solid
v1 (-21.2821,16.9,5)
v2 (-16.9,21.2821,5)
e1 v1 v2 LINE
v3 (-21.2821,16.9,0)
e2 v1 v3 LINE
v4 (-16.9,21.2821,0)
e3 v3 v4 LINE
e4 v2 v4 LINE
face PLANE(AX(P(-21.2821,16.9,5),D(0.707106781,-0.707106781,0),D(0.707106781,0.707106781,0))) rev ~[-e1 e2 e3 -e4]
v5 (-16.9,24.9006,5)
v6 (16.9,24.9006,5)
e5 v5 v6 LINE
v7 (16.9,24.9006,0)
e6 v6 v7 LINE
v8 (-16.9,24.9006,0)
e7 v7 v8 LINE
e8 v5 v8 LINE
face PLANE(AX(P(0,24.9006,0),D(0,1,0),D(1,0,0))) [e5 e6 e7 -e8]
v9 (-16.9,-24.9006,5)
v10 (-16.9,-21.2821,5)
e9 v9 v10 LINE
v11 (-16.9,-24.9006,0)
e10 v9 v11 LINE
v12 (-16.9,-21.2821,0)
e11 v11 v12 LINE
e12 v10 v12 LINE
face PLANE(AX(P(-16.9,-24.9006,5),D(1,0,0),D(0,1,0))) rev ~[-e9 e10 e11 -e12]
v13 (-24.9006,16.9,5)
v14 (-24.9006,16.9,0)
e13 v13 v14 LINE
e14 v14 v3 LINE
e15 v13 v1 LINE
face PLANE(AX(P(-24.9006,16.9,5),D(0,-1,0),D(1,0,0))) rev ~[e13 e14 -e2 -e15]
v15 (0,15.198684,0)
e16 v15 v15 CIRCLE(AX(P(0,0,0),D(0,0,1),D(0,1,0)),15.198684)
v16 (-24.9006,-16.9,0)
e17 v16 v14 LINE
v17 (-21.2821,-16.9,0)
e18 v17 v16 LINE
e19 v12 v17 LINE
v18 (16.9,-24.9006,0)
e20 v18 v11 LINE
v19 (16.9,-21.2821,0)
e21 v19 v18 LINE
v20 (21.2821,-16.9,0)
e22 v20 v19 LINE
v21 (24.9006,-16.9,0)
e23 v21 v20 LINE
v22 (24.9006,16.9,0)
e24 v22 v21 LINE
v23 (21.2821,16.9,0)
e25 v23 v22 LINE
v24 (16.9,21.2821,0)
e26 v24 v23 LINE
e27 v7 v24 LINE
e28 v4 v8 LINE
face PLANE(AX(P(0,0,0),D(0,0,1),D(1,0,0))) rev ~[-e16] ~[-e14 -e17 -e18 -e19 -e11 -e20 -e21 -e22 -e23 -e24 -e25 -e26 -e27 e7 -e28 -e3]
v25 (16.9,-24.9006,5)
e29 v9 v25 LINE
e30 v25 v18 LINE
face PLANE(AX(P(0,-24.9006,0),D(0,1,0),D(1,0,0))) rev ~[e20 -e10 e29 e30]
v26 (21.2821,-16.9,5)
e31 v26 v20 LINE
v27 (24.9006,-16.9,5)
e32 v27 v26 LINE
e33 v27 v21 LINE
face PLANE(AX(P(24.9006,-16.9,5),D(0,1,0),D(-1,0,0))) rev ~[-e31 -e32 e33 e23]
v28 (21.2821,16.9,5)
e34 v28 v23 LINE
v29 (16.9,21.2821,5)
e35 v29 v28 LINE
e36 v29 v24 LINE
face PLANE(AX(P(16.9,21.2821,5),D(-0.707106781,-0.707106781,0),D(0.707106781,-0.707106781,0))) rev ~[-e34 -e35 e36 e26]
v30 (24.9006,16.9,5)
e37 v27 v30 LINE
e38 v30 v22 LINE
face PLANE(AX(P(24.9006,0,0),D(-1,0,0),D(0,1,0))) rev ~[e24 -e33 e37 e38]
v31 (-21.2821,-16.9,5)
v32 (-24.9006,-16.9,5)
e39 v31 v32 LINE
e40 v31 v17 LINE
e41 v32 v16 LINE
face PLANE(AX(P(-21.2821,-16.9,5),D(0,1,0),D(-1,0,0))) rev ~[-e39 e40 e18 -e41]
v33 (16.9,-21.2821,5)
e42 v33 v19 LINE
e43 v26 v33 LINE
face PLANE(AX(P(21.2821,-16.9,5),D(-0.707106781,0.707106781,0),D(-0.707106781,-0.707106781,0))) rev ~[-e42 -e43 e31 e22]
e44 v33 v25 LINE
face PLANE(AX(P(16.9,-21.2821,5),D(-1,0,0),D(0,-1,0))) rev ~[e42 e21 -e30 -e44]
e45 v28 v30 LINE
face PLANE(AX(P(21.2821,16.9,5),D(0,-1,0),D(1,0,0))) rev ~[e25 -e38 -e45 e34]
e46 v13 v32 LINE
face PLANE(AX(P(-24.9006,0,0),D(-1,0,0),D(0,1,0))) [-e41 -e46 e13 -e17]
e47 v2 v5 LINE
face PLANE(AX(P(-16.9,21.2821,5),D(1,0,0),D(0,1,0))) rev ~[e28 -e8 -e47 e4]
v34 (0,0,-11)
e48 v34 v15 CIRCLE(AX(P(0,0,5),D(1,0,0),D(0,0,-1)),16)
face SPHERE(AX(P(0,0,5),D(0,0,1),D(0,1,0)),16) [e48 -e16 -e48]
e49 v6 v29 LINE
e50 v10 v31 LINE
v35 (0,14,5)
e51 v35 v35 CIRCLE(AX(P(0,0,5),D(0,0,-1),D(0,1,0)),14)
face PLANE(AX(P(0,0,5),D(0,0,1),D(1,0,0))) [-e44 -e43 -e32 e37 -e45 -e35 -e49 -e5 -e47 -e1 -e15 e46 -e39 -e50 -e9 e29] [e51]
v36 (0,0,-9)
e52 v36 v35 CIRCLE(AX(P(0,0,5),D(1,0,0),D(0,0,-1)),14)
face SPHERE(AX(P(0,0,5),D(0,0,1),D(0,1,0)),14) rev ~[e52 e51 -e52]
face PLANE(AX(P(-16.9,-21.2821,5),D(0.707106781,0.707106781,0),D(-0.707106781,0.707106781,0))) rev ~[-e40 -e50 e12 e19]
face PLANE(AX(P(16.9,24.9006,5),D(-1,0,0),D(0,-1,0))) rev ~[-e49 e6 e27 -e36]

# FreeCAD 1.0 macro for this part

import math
import FreeCAD as App
import Part
import Sketcher

V = App.Vector

doc = App.newDocument("Part")
body = doc.addObject("PartDesign::Body", "Body")

sketch1 = body.newObject("Sketcher::SketchObject", "Sketch")
sketch1.AttachmentSupport = (doc.getObject("XY_Plane"), [""])
sketch1.MapMode = "FlatFace"
sketch1.addGeometry([
    Part.LineSegment(V(16.8, 24.9, 0), V(-16.8, 24.9, 0)),
    Part.LineSegment(V(-16.8, 24.9, 0), V(-16.8, 21.2, 0)),
    Part.LineSegment(V(-16.8, 21.2, 0), V(-21.2, 16.8, 0)),
    Part.LineSegment(V(-21.2, 16.8, 0), V(-24.9, 16.8, 0)),
    Part.LineSegment(V(-24.9, 16.8, 0), V(-24.9, -16.8, 0)),
    Part.LineSegment(V(-24.9, -16.8, 0), V(-21.2, -16.8, 0)),
    Part.LineSegment(V(-21.2, -16.8, 0), V(-16.8, -21.2, 0)),
    Part.LineSegment(V(-16.8, -21.2, 0), V(-16.8, -24.9, 0)),
    Part.LineSegment(V(-16.8, -24.9, 0), V(16.8, -24.9, 0)),
    Part.LineSegment(V(16.8, -24.9, 0), V(16.8, -21.2, 0)),
    Part.LineSegment(V(16.8, -21.2, 0), V(21.2, -16.8, 0)),
    Part.LineSegment(V(21.2, -16.8, 0), V(24.9, -16.8, 0)),
    Part.LineSegment(V(24.9, -16.8, 0), V(24.9, 16.8, 0)),
    Part.LineSegment(V(24.9, 16.8, 0), V(21.2, 16.8, 0)),
    Part.LineSegment(V(21.2, 16.8, 0), V(16.8, 21.2, 0)),
    Part.LineSegment(V(16.8, 21.2, 0), V(16.8, 24.9, 0)),
    Part.Circle(V(0, 0, 0), V(0, 0, 1), 14),
], False)
sketch1.addConstraint([
    Sketcher.Constraint("Coincident", 0, 2, 1, 1),
    Sketcher.Constraint("Coincident", 1, 2, 2, 1),
    Sketcher.Constraint("Coincident", 2, 2, 3, 1),
    Sketcher.Constraint("Coincident", 3, 2, 4, 1),
    Sketcher.Constraint("Coincident", 4, 2, 5, 1),
    Sketcher.Constraint("Coincident", 5, 2, 6, 1),
    Sketcher.Constraint("Coincident", 6, 2, 7, 1),
    Sketcher.Constraint("Coincident", 7, 2, 8, 1),
    Sketcher.Constraint("Coincident", 8, 2, 9, 1),
    Sketcher.Constraint("Coincident", 9, 2, 10, 1),
    Sketcher.Constraint("Coincident", 10, 2, 11, 1),
    Sketcher.Constraint("Coincident", 11, 2, 12, 1),
    Sketcher.Constraint("Coincident", 12, 2, 13, 1),
    Sketcher.Constraint("Coincident", 13, 2, 14, 1),
    Sketcher.Constraint("Coincident", 14, 2, 15, 1),
    Sketcher.Constraint("Coincident", 15, 2, 0, 1),
    Sketcher.Constraint("Horizontal", 0),
    Sketcher.Constraint("Vertical", 1),
    Sketcher.Constraint("Horizontal", 3),
    Sketcher.Constraint("Vertical", 4),
    Sketcher.Constraint("Horizontal", 5),
    Sketcher.Constraint("Vertical", 7),
    Sketcher.Constraint("Horizontal", 8),
    Sketcher.Constraint("Vertical", 9),
    Sketcher.Constraint("Horizontal", 11),
    Sketcher.Constraint("Vertical", 12),
    Sketcher.Constraint("Horizontal", 13),
    Sketcher.Constraint("Vertical", 15),
    Sketcher.Constraint("Coincident", 16, 3, -1, 1),
    Sketcher.Constraint("Symmetric", 0, 2, 8, 2, -1, 1),
    Sketcher.Constraint("Symmetric", 2, 2, 10, 2, -1, 1),
    Sketcher.Constraint("Symmetric", 4, 2, 12, 2, -1, 1),
    Sketcher.Constraint("Symmetric", 6, 2, 14, 2, -1, 1),
    Sketcher.Constraint("Symmetric", 6, 2, 9, 2, -2),
    Sketcher.Constraint("Symmetric", 5, 2, 10, 2, -2),
    Sketcher.Constraint("Perpendicular", 2, 6),
    Sketcher.Constraint("Perpendicular", 6, 10),
    Sketcher.Constraint("Perpendicular", 10, 14),
    Sketcher.Constraint("Equal", 13, 1),
    Sketcher.Constraint("Equal", 8, 4),
    Sketcher.Constraint("Diameter", 16, 28.0),
    Sketcher.Constraint("DistanceX", 3, 2, 3, 1, 3.66),
    Sketcher.Constraint("DistanceX", 0, 2, -1, 1, 16.8),
    Sketcher.Constraint("Distance", 2, 6.28),
])
pad1 = body.newObject("PartDesign::Pad", "Pad")
pad1.Profile = sketch1
pad1.Length = 5

sketch2 = body.newObject("Sketcher::SketchObject", "Sketch001")
sketch2.AttachmentSupport = (doc.getObject("YZ_Plane"), [""])
sketch2.MapMode = "FlatFace"
sketch2.addGeometry([
    Part.ArcOfCircle(Part.Circle(V(0, 5, 0), V(0, 0, 1), 16), math.radians(-90), math.radians(0)),
    Part.LineSegment(V(16, 5, 0), V(14, 5, 0)),
    Part.ArcOfCircle(Part.Circle(V(0, 5, 0), V(0, 0, 1), 14), math.radians(-90), math.radians(0)),
    Part.LineSegment(V(0, -9, 0), V(0, -11, 0)),
], False)
sketch2.addConstraint([
    Sketcher.Constraint("Coincident", 0, 2, 1, 1),
    Sketcher.Constraint("Coincident", 1, 2, 2, 2),
    Sketcher.Constraint("Coincident", 2, 1, 3, 1),
    Sketcher.Constraint("Coincident", 3, 2, 0, 1),
    Sketcher.Constraint("Horizontal", 1),
    Sketcher.Constraint("Vertical", 3),
    Sketcher.Constraint("Coincident", 2, 3, 0, 3),
    Sketcher.Constraint("PointOnObject", 0, 3, -2),
    Sketcher.Constraint("PointOnObject", 2, 1, -2),
    Sketcher.Constraint("Horizontal", 2, 3, 0, 2),
    Sketcher.Constraint("Radius", 0, 16.0),
    Sketcher.Constraint("Radius", 2, 14.0),
    Sketcher.Constraint("DistanceY", -1, 1, 0, 3, 5.0),
])
revolution = body.newObject("PartDesign::Revolution", "Revolution")
revolution.Profile = sketch2
revolution.ReferenceAxis = (sketch2, ["V_Axis"])
revolution.Angle = 360

sketch3 = body.newObject("Sketcher::SketchObject", "Sketch002")
sketch3.AttachmentSupport = (doc.getObject("XY_Plane"), [""])
sketch3.MapMode = "FlatFace"
sketch3.AttachmentOffset = App.Placement(V(0, 0, 5), App.Rotation())
sketch3.addGeometry([
    Part.LineSegment(V(-21.24, -16.8, 0), V(-24.9, -16.8, 0)),
    Part.LineSegment(V(-24.9, -16.8, 0), V(-24.9, -16.9, 0)),
    Part.LineSegment(V(-24.9, -16.9, 0), V(-21.28, -16.9, 0)),
    Part.LineSegment(V(-21.28, -16.9, 0), V(-16.9, -21.28, 0)),
    Part.LineSegment(V(-16.9, -21.28, 0), V(-16.9, -24.9, 0)),
    Part.LineSegment(V(-16.9, -24.9, 0), V(-16.8, -24.9, 0)),
    Part.LineSegment(V(-16.8, -24.9, 0), V(-16.8, -21.24, 0)),
    Part.LineSegment(V(-16.8, -21.24, 0), V(-21.24, -16.8, 0)),
    Part.LineSegment(V(24.9, -16.9, 0), V(24.9, -16.8, 0)),
    Part.LineSegment(V(24.9, -16.8, 0), V(21.24, -16.8, 0)),
    Part.LineSegment(V(21.24, -16.8, 0), V(16.8, -21.24, 0)),
    Part.LineSegment(V(16.8, -21.24, 0), V(16.8, -24.9, 0)),
    Part.LineSegment(V(16.8, -24.9, 0), V(16.9, -24.9, 0)),
    Part.LineSegment(V(16.9, -24.9, 0), V(16.9, -21.28, 0)),
    Part.LineSegment(V(16.9, -21.28, 0), V(21.28, -16.9, 0)),
    Part.LineSegment(V(21.28, -16.9, 0), V(24.9, -16.9, 0)),
    Part.LineSegment(V(16.9, 24.9, 0), V(16.8, 24.9, 0)),
    Part.LineSegment(V(16.8, 24.9, 0), V(16.8, 21.24, 0)),
    Part.LineSegment(V(16.8, 21.24, 0), V(21.24, 16.8, 0)),
    Part.LineSegment(V(21.24, 16.8, 0), V(24.9, 16.8, 0)),
    Part.LineSegment(V(24.9, 16.8, 0), V(24.9, 16.9, 0)),
    Part.LineSegment(V(24.9, 16.9, 0), V(21.28, 16.9, 0)),
    Part.LineSegment(V(21.28, 16.9, 0), V(16.9, 21.28, 0)),
    Part.LineSegment(V(16.9, 21.28, 0), V(16.9, 24.9, 0)),
    Part.LineSegment(V(-16.8, 21.24, 0), V(-16.8, 24.9, 0)),
    Part.LineSegment(V(-16.8, 24.9, 0), V(-16.9, 24.9, 0)),
    Part.LineSegment(V(-16.9, 24.9, 0), V(-16.9, 21.28, 0)),
    Part.LineSegment(V(-16.9, 21.28, 0), V(-21.28, 16.9, 0)),
    Part.LineSegment(V(-21.28, 16.9, 0), V(-24.9, 16.9, 0)),
    Part.LineSegment(V(-24.9, 16.9, 0), V(-24.9, 16.8, 0)),
    Part.LineSegment(V(-24.9, 16.8, 0), V(-21.24, 16.8, 0)),
    Part.LineSegment(V(-21.24, 16.8, 0), V(-16.8, 21.24, 0)),
], False)
sketch3.addConstraint([
    Sketcher.Constraint("Coincident", 0, 2, 1, 1),
    Sketcher.Constraint("Coincident", 1, 2, 2, 1),
    Sketcher.Constraint("Coincident", 2, 2, 3, 1),
    Sketcher.Constraint("Coincident", 3, 2, 4, 1),
    Sketcher.Constraint("Coincident", 4, 2, 5, 1),
    Sketcher.Constraint("Coincident", 5, 2, 6, 1),
    Sketcher.Constraint("Coincident", 6, 2, 7, 1),
    Sketcher.Constraint("Coincident", 7, 2, 0, 1),
    Sketcher.Constraint("Coincident", 8, 2, 9, 1),
    Sketcher.Constraint("Coincident", 9, 2, 10, 1),
    Sketcher.Constraint("Coincident", 10, 2, 11, 1),
    Sketcher.Constraint("Coincident", 11, 2, 12, 1),
    Sketcher.Constraint("Coincident", 12, 2, 13, 1),
    Sketcher.Constraint("Coincident", 13, 2, 14, 1),
    Sketcher.Constraint("Coincident", 14, 2, 15, 1),
    Sketcher.Constraint("Coincident", 15, 2, 8, 1),
    Sketcher.Constraint("Coincident", 16, 2, 17, 1),
    Sketcher.Constraint("Coincident", 17, 2, 18, 1),
    Sketcher.Constraint("Coincident", 18, 2, 19, 1),
    Sketcher.Constraint("Coincident", 19, 2, 20, 1),
    Sketcher.Constraint("Coincident", 20, 2, 21, 1),
    Sketcher.Constraint("Coincident", 21, 2, 22, 1),
    Sketcher.Constraint("Coincident", 22, 2, 23, 1),
    Sketcher.Constraint("Coincident", 23, 2, 16, 1),
    Sketcher.Constraint("Coincident", 24, 2, 25, 1),
    Sketcher.Constraint("Coincident", 25, 2, 26, 1),
    Sketcher.Constraint("Coincident", 26, 2, 27, 1),
    Sketcher.Constraint("Coincident", 27, 2, 28, 1),
    Sketcher.Constraint("Coincident", 28, 2, 29, 1),
    Sketcher.Constraint("Coincident", 29, 2, 30, 1),
    Sketcher.Constraint("Coincident", 30, 2, 31, 1),
    Sketcher.Constraint("Coincident", 31, 2, 24, 1),
    Sketcher.Constraint("Horizontal", 0),
    Sketcher.Constraint("Vertical", 1),
    Sketcher.Constraint("Horizontal", 2),
    Sketcher.Constraint("Vertical", 4),
    Sketcher.Constraint("Horizontal", 5),
    Sketcher.Constraint("Vertical", 6),
    Sketcher.Constraint("Vertical", 8),
    Sketcher.Constraint("Horizontal", 9),
    Sketcher.Constraint("Vertical", 11),
    Sketcher.Constraint("Horizontal", 12),
    Sketcher.Constraint("Vertical", 13),
    Sketcher.Constraint("Horizontal", 15),
    Sketcher.Constraint("Horizontal", 16),
    Sketcher.Constraint("Vertical", 17),
    Sketcher.Constraint("Horizontal", 19),
    Sketcher.Constraint("Vertical", 20),
    Sketcher.Constraint("Horizontal", 21),
    Sketcher.Constraint("Vertical", 23),
    Sketcher.Constraint("Vertical", 24),
    Sketcher.Constraint("Horizontal", 25),
    Sketcher.Constraint("Vertical", 26),
    Sketcher.Constraint("Horizontal", 28),
    Sketcher.Constraint("Vertical", 29),
    Sketcher.Constraint("Horizontal", 30),
    Sketcher.Constraint("Symmetric", 5, 2, 16, 2, -1, 1),
    Sketcher.Constraint("Symmetric", 7, 2, 18, 2, -1, 1),
    Sketcher.Constraint("Symmetric", 1, 2, 20, 2, -1, 1),
    Sketcher.Constraint("Symmetric", 3, 2, 22, 2, -1, 1),
    Sketcher.Constraint("Symmetric", 11, 2, 24, 2, -1, 1),
    Sketcher.Constraint("Symmetric", 13, 2, 26, 2, -1, 1),
    Sketcher.Constraint("Symmetric", 14, 2, 27, 2, -1, 1),
    Sketcher.Constraint("Symmetric", 8, 2, 29, 2, -1, 1),
    Sketcher.Constraint("Symmetric", 0, 2, 8, 2, -2),
    Sketcher.Constraint("Symmetric", 6, 2, 10, 2, -2),
    Sketcher.Constraint("Symmetric", 4, 2, 12, 2, -2),
    Sketcher.Constraint("Symmetric", 2, 2, 14, 2, -2),
    Sketcher.Constraint("Parallel", 3, 7),
    Sketcher.Constraint("Perpendicular", 7, 10),
    Sketcher.Constraint("Parallel", 10, 14),
    Sketcher.Constraint("Perpendicular", 14, 18),
    Sketcher.Constraint("Parallel", 18, 22),
    Sketcher.Constraint("Parallel", 27, 31),
    Sketcher.Constraint("Horizontal", 3, 2, 13, 2),
    Sketcher.Constraint("Horizontal", 17, 2, 31, 2),
    Sketcher.Constraint("Equal", 25, 1),
    Sketcher.Constraint("Equal", 28, 4),
    Sketcher.Constraint("DistanceX", 5, 1, 5, 2, 0.1),
    Sketcher.Constraint("DistanceX", 0, 2, 0, 1, 3.66),
    Sketcher.Constraint("DistanceY", 0, 2, -1, 1, 16.8),
    Sketcher.Constraint("DistanceX", 3, 2, -1, 1, 16.9),
    Sketcher.Constraint("Distance", 7, 6.28),
    Sketcher.Constraint("DistanceX", 2, 1, 2, 2, 3.6185),
])
pad2 = body.newObject("PartDesign::Pad", "Pad001")
pad2.Profile = sketch3
pad2.Length = 5
pad2.Reversed = True

doc.recompute()
